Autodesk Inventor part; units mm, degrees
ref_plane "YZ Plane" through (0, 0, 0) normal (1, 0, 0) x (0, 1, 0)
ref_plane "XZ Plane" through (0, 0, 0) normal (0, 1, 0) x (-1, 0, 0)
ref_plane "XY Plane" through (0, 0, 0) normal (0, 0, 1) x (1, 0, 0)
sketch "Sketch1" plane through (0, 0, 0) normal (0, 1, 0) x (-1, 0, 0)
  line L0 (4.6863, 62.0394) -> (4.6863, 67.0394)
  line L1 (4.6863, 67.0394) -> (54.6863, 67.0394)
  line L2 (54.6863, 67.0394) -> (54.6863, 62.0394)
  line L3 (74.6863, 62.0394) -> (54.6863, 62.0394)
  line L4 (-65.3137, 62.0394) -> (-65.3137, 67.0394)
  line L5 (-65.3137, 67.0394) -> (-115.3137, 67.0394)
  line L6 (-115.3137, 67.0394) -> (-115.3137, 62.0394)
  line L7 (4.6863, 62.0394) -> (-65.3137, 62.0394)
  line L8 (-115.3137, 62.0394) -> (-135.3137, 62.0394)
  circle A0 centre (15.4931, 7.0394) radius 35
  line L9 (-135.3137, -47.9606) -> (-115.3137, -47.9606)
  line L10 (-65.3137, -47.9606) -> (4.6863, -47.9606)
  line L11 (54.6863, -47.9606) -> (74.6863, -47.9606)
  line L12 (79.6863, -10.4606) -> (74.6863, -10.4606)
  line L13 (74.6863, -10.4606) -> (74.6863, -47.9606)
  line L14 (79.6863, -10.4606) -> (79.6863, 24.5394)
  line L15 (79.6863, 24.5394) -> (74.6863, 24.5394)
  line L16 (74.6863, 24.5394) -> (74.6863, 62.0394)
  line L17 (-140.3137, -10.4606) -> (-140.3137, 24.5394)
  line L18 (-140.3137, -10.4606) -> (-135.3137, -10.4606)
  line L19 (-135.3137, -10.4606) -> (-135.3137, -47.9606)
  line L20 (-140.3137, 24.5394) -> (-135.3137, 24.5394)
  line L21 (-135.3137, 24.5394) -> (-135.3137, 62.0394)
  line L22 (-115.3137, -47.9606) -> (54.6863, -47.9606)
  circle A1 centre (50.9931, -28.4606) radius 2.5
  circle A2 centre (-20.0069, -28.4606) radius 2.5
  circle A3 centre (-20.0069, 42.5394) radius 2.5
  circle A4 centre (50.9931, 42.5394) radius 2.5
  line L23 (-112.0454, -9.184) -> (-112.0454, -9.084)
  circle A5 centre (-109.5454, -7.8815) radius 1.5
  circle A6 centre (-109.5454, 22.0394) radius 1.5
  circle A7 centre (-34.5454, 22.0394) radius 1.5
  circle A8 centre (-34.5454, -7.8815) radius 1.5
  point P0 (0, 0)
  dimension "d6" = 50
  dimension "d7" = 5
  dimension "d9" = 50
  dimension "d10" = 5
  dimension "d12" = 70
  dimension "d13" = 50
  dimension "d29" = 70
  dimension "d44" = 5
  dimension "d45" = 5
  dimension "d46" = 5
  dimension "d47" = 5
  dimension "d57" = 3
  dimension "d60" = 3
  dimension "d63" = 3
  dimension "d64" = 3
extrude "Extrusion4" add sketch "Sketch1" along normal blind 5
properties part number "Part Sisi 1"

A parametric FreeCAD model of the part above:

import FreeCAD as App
import Part
import Sketcher

V = App.Vector
Q = App.Units.Quantity

doc = App.newDocument("Part")
params = doc.addObject("Spreadsheet::Sheet", "Params")
for row, (alias, value) in enumerate([
    ("sketch1_diameter", "3 mm"),
    ("sketch1_diameter2", "5 mm"),
    ("sketch1_diameter3", "70 mm"),
    ("sketch1_width", "70 mm"),
    ("sketch1_width2", "50 mm"),
    ("pad1_length", "5 mm"),
], start=1):
    params.set(f"A{row}", alias)
    params.set(f"B{row}", "=" + value)
    params.setAlias(f"B{row}", alias)

body = doc.addObject("PartDesign::Body", "Body")

# Sketch on XZ plane
sketch1 = body.newObject("Sketcher::SketchObject", "Sketch")
sketch1.AttachmentSupport = (doc.getObject("XZ_Plane"), [""])
sketch1.MapMode = "FlatFace"
sketch1.addGeometry([
    Part.LineSegment(V(-4.6863, 67.0394, 0), V(-4.6863, 62.0394, 0)),  # 0
    Part.LineSegment(V(-4.6863, 62.0394, 0), V(65.3137, 62.0394, 0)),  # 1
    Part.LineSegment(V(65.3137, 62.0394, 0), V(65.3137, 67.0394, 0)),  # 2
    Part.LineSegment(V(65.3137, 67.0394, 0), V(115.3137, 67.0394, 0)),  # 3
    Part.LineSegment(V(115.3137, 67.0394, 0), V(115.3137, 62.0394, 0)),  # 4
    Part.LineSegment(V(115.3137, 62.0394, 0), V(135.3137, 62.0394, 0)),  # 5
    Part.LineSegment(V(135.3137, 62.0394, 0), V(135.3137, 24.5394, 0)),  # 6
    Part.LineSegment(V(135.3137, 24.5394, 0), V(140.3137, 24.5394, 0)),  # 7
    Part.LineSegment(V(140.3137, 24.5394, 0), V(140.3137, -10.4606, 0)),  # 8
    Part.LineSegment(V(140.3137, -10.4606, 0), V(135.3137, -10.4606, 0)),  # 9
    Part.LineSegment(V(135.3137, -10.4606, 0), V(135.3137, -47.9606, 0)),  # 10
    Part.LineSegment(V(135.3137, -47.9606, 0), V(-74.6863, -47.9606, 0)),  # 11
    Part.LineSegment(V(-74.6863, -47.9606, 0), V(-74.6863, -10.4606, 0)),  # 12
    Part.LineSegment(V(-74.6863, -10.4606, 0), V(-79.6863, -10.4606, 0)),  # 13
    Part.LineSegment(V(-79.6863, -10.4606, 0), V(-79.6863, 24.5394, 0)),  # 14
    Part.LineSegment(V(-79.6863, 24.5394, 0), V(-74.6863, 24.5394, 0)),  # 15
    Part.LineSegment(V(-74.6863, 24.5394, 0), V(-74.6863, 62.0394, 0)),  # 16
    Part.LineSegment(V(-74.6863, 62.0394, 0), V(-54.6863, 62.0394, 0)),  # 17
    Part.LineSegment(V(-54.6863, 62.0394, 0), V(-54.6863, 67.0394, 0)),  # 18
    Part.LineSegment(V(-54.6863, 67.0394, 0), V(-4.6863, 67.0394, 0)),  # 19
    Part.Circle(V(109.5454, -7.8815, 0), V(0, 0, 1), 1.5),  # 20
    Part.Circle(V(34.5454, -7.8815, 0), V(0, 0, 1), 1.5),  # 21
    Part.Circle(V(20.0069, -28.4606, 0), V(0, 0, 1), 2.5),  # 22
    Part.Circle(V(-50.9931, -28.4606, 0), V(0, 0, 1), 2.5),  # 23
    Part.Circle(V(-15.4931, 7.0394, 0), V(0, 0, 1), 35),  # 24
    Part.Circle(V(109.5454, 22.0394, 0), V(0, 0, 1), 1.5),  # 25
    Part.Circle(V(34.5454, 22.0394, 0), V(0, 0, 1), 1.5),  # 26
    Part.Circle(V(20.0069, 42.5394, 0), V(0, 0, 1), 2.5),  # 27
    Part.Circle(V(-50.9931, 42.5394, 0), V(0, 0, 1), 2.5),  # 28
], False)
sketch1.addConstraint([
    Sketcher.Constraint("Coincident", 0, 2, 1, 1),
    Sketcher.Constraint("Coincident", 1, 2, 2, 1),
    Sketcher.Constraint("Coincident", 2, 2, 3, 1),
    Sketcher.Constraint("Coincident", 3, 2, 4, 1),
    Sketcher.Constraint("Coincident", 4, 2, 5, 1),
    Sketcher.Constraint("Coincident", 5, 2, 6, 1),
    Sketcher.Constraint("Coincident", 6, 2, 7, 1),
    Sketcher.Constraint("Coincident", 7, 2, 8, 1),
    Sketcher.Constraint("Coincident", 8, 2, 9, 1),
    Sketcher.Constraint("Coincident", 9, 2, 10, 1),
    Sketcher.Constraint("Coincident", 10, 2, 11, 1),
    Sketcher.Constraint("Coincident", 11, 2, 12, 1),
    Sketcher.Constraint("Coincident", 12, 2, 13, 1),
    Sketcher.Constraint("Coincident", 13, 2, 14, 1),
    Sketcher.Constraint("Coincident", 14, 2, 15, 1),
    Sketcher.Constraint("Coincident", 15, 2, 16, 1),
    Sketcher.Constraint("Coincident", 16, 2, 17, 1),
    Sketcher.Constraint("Coincident", 17, 2, 18, 1),
    Sketcher.Constraint("Coincident", 18, 2, 19, 1),
    Sketcher.Constraint("Coincident", 19, 2, 0, 1),
    Sketcher.Constraint("Vertical", 0),
    Sketcher.Constraint("Horizontal", 1),
    Sketcher.Constraint("Vertical", 2),
    Sketcher.Constraint("Horizontal", 3),
    Sketcher.Constraint("Vertical", 4),
    Sketcher.Constraint("Horizontal", 5),
    Sketcher.Constraint("Vertical", 6),
    Sketcher.Constraint("Horizontal", 7),
    Sketcher.Constraint("Vertical", 8),
    Sketcher.Constraint("Horizontal", 9),
    Sketcher.Constraint("Vertical", 10),
    Sketcher.Constraint("Horizontal", 11),
    Sketcher.Constraint("Vertical", 12),
    Sketcher.Constraint("Horizontal", 13),
    Sketcher.Constraint("Vertical", 14),
    Sketcher.Constraint("Horizontal", 15),
    Sketcher.Constraint("Vertical", 16),
    Sketcher.Constraint("Horizontal", 17),
    Sketcher.Constraint("Vertical", 18),
    Sketcher.Constraint("Horizontal", 19),
    Sketcher.Constraint("Equal", 20, 21),
    Sketcher.Constraint("Equal", 22, 23),
    Sketcher.Constraint("Equal", 21, 25),
    Sketcher.Constraint("Equal", 25, 26),
    Sketcher.Constraint("Equal", 23, 27),
    Sketcher.Constraint("Equal", 27, 28),
    Sketcher.Constraint("Horizontal", 20, 3, 21, 3),
    Sketcher.Constraint("Horizontal", 22, 3, 23, 3),
    Sketcher.Constraint("Horizontal", 25, 3, 26, 3),
    Sketcher.Constraint("Horizontal", 27, 3, 28, 3),
    Sketcher.Constraint("Horizontal", 1, 2, 4, 2),
    Sketcher.Constraint("Horizontal", 9, 2, 12, 2),
    Sketcher.Constraint("Horizontal", 7, 2, 14, 2),
    Sketcher.Constraint("Horizontal", 5, 2, 16, 2),
    Sketcher.Constraint("Horizontal", 3, 2, 18, 2),
    Sketcher.Constraint("Vertical", 20, 3, 25, 3),
    Sketcher.Constraint("Vertical", 21, 3, 26, 3),
    Sketcher.Constraint("Vertical", 22, 3, 27, 3),
    Sketcher.Constraint("Vertical", 23, 3, 28, 3),
    Sketcher.Constraint("Vertical", 6, 2, 9, 2),
    Sketcher.Constraint("Vertical", 12, 2, 15, 2),
    Sketcher.Constraint("Equal", 9, 13),
    Sketcher.Constraint("Equal", 5, 17),
    Sketcher.Constraint("Equal", 3, 19),
    Sketcher.Constraint("Equal", 15, 0),
    Sketcher.Constraint("Equal", 6, 10),
    Sketcher.Constraint("Diameter", 20, Q("3 mm")),
    Sketcher.Constraint("Diameter", 22, Q("5 mm")),
    Sketcher.Constraint("Diameter", 24, Q("70 mm")),
    Sketcher.Constraint("DistanceX", 1, 1, 1, 2, Q("70 mm")),
    Sketcher.Constraint("DistanceX", 3, 1, 3, 2, Q("50 mm")),
    Sketcher.Constraint("DistanceX", 7, 1, 7, 2, Q("5 mm")),
    Sketcher.Constraint("DistanceX", 1, 2, 5, 2, Q("70 mm")),
    Sketcher.Constraint("DistanceY", 8, 2, 8, 1, Q("35 mm")),
    Sketcher.Constraint("DistanceY", 6, 2, 6, 1, Q("37.5 mm")),
    Sketcher.Constraint("DistanceX", 21, 3, 20, 3, Q("75 mm")),
    Sketcher.Constraint("DistanceX", 23, 3, 22, 3, Q("71 mm")),
    Sketcher.Constraint("DistanceY", 24, 3, 25, 3, Q("15 mm")),
    Sketcher.Constraint("DistanceY", 22, 3, 27, 3, Q("71 mm")),
    Sketcher.Constraint("DistanceY", 26, 3, 0, 2, Q("40 mm")),
    Sketcher.Constraint("DistanceY", 23, 3, 12, 2, Q("18 mm")),
    Sketcher.Constraint("DistanceX", 24, 3, 22, 3, Q("35.5 mm")),
    Sketcher.Constraint("DistanceX", -1, 1, 22, 3, Q("20.007 mm")),
    Sketcher.Constraint("DistanceY", 22, 3, 21, 3, Q("20.579 mm")),
    Sketcher.Constraint("DistanceX", -1, 1, 20, 3, Q("109.5454 mm")),
    Sketcher.Constraint("DistanceY", 20, 3, -1, 1, Q("7.8815 mm")),
    Sketcher.Constraint("DistanceX", 0, 2, -1, 1, Q("4.6863 mm")),
])
sketch1.setExpression("Constraints[66]", "Params.sketch1_diameter")
sketch1.setExpression("Constraints[67]", "Params.sketch1_diameter2")
sketch1.setExpression("Constraints[68]", "Params.sketch1_diameter3")
sketch1.setExpression("Constraints[69]", "Params.sketch1_width")
sketch1.setExpression("Constraints[70]", "Params.sketch1_width2")
pad1 = body.newObject("PartDesign::Pad", "Pad")
pad1.Profile = sketch1
pad1.setExpression("Length", "Params.pad1_length")
pad1.Reversed = True

doc.recompute()
